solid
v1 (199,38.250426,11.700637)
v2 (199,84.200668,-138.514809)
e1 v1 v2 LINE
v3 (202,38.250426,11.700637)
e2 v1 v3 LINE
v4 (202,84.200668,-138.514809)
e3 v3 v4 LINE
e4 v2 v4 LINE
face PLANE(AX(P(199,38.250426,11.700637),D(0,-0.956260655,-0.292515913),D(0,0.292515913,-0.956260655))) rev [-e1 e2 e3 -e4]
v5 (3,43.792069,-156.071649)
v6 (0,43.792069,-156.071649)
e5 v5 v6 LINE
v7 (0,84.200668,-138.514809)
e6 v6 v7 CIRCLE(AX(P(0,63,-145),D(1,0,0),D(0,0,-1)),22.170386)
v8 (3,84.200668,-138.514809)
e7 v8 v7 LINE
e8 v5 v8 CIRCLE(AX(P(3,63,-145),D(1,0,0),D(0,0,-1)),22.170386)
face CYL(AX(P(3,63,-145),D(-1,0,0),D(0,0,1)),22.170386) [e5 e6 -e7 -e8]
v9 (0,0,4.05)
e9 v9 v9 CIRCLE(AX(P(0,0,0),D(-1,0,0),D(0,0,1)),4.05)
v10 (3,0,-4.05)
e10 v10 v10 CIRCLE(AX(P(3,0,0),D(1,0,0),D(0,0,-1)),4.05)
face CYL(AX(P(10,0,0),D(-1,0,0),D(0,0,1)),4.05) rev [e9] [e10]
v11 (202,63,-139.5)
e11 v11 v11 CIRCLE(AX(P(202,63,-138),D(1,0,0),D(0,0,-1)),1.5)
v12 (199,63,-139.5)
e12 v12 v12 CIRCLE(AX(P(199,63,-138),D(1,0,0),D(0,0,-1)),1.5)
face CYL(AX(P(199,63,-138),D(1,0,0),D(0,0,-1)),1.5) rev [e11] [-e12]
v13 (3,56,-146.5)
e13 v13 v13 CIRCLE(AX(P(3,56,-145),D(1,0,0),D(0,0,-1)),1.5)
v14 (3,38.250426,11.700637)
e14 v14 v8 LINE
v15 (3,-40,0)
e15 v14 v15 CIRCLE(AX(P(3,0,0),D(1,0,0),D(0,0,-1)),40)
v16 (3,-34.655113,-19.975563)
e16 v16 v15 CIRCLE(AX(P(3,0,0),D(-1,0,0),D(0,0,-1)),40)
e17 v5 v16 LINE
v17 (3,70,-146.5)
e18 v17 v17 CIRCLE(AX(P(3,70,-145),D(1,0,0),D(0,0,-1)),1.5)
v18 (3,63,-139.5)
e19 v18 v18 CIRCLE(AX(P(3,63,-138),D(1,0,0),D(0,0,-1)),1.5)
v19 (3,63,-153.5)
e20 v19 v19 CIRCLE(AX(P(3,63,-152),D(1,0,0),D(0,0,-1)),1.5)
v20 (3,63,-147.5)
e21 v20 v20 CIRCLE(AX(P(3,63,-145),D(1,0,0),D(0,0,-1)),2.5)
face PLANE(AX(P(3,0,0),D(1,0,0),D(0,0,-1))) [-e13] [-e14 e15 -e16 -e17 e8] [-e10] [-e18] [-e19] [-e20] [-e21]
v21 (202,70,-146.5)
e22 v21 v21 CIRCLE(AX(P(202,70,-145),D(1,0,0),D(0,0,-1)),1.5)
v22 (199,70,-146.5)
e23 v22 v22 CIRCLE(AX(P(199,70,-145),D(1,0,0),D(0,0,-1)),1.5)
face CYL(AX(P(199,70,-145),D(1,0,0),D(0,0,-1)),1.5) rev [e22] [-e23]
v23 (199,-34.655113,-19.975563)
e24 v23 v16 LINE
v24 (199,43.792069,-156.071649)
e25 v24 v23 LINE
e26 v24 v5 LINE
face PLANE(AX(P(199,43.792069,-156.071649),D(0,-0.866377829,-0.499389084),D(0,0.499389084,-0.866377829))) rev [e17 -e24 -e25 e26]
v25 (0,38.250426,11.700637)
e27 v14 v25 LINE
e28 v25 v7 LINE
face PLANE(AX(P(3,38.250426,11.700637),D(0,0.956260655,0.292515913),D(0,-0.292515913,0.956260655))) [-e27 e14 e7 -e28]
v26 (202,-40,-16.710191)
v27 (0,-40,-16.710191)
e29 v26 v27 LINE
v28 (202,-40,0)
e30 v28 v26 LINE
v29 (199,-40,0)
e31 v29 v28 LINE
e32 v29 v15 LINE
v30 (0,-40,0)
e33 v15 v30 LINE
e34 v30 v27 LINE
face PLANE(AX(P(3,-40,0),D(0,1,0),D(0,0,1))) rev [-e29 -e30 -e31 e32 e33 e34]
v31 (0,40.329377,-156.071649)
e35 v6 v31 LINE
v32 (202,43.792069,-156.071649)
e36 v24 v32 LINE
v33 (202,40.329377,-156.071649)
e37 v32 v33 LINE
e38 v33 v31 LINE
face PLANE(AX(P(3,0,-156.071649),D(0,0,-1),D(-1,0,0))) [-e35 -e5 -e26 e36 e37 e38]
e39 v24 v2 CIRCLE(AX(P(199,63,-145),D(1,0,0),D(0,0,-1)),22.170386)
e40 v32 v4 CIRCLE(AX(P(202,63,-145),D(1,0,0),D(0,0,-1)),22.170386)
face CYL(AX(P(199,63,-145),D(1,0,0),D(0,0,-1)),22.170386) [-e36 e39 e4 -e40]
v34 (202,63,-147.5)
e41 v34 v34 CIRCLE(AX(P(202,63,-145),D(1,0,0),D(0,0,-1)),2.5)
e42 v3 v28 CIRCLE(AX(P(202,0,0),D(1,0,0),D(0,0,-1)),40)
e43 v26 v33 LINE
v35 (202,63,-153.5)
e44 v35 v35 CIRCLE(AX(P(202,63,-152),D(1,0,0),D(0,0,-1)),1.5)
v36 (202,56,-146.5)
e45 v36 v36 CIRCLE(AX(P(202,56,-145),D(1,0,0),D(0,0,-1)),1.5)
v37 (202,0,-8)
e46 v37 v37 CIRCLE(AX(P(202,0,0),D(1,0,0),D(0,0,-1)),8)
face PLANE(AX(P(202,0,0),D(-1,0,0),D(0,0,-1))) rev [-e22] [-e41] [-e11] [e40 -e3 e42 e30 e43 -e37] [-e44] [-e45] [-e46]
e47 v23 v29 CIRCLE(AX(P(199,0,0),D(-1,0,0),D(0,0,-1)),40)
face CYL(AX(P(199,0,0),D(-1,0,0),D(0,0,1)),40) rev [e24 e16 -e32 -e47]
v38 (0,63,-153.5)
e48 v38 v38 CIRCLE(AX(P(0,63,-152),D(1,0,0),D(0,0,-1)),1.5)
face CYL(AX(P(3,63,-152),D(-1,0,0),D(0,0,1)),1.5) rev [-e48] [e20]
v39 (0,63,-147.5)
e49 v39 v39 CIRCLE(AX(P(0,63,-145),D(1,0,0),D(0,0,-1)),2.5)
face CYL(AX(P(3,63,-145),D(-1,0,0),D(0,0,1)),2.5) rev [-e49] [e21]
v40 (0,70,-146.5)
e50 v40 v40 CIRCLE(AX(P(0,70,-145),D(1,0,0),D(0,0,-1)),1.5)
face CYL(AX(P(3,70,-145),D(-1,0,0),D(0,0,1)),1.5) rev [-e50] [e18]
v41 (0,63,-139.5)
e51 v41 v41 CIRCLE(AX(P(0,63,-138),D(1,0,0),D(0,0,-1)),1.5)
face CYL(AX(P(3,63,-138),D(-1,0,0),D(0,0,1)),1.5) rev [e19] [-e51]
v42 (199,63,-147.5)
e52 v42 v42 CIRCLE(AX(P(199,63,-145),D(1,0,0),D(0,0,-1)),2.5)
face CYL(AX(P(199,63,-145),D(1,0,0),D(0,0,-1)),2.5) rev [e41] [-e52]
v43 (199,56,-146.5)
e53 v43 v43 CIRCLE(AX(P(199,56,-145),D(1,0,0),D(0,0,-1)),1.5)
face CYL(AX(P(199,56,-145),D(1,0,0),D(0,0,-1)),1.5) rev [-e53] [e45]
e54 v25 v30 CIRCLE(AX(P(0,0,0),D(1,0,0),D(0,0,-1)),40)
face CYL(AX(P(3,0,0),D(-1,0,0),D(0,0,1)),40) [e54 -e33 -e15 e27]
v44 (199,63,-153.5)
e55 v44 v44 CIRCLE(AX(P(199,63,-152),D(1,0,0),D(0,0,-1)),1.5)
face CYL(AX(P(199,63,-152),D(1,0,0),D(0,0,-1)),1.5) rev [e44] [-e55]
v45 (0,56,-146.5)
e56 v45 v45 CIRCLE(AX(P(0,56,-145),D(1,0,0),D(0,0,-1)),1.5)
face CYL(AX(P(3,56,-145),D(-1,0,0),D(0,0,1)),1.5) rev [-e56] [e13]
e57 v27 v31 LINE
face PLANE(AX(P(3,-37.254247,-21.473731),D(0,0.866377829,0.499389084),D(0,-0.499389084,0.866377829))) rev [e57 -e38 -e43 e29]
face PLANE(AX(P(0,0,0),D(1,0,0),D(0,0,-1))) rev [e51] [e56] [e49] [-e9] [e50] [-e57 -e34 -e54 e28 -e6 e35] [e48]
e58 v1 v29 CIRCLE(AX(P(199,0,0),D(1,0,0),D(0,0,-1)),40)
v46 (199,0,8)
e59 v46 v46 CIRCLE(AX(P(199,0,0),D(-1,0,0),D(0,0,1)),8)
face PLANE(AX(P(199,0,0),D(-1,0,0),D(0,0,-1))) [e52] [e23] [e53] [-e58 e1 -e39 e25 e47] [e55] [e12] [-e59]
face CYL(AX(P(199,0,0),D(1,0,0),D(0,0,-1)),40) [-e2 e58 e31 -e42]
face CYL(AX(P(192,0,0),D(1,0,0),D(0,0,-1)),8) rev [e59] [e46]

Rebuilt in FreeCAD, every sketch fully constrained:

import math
import FreeCAD as App
import Part
import Sketcher
from FreeCAD import Vector

doc = App.newDocument("Part")
body = doc.addObject("PartDesign::Body", "Body")

sketch1 = doc.addObject("Sketcher::SketchObject", "Sketch")
body.addObject(sketch1)
sketch1.AttachmentSupport = (doc.YZ_Plane, [""])
sketch1.MapMode = "FlatFace"
sketch1.addGeometry([
    Part.LineSegment(Vector(84.2, -138.5, 0), Vector(38.3, 11.7, 0)),
    Part.ArcOfCircle(Part.Circle(Vector(0, 0, 0), Vector(0, 0, 1), 40), math.radians(17), math.radians(180)),
    Part.LineSegment(Vector(-40, 0, 0), Vector(-40, -16.7, 0)),
    Part.LineSegment(Vector(-40, -16.7, 0), Vector(40.3, -156.1, 0)),
    Part.LineSegment(Vector(40.3, -156.1, 0), Vector(43.8, -156.1, 0)),
    Part.ArcOfCircle(Part.Circle(Vector(63, -145, 0), Vector(0, 0, 1), 22.2), math.radians(-150), math.radians(17)),
    Part.Circle(Vector(0, 0, 0), Vector(0, 0, 1), 3),
    Part.Circle(Vector(56, -145, 0), Vector(0, 0, 1), 1.5),
    Part.Circle(Vector(63, -138, 0), Vector(0, 0, 1), 1.5),
    Part.Circle(Vector(63, -145, 0), Vector(0, 0, 1), 2.5),
    Part.Circle(Vector(63, -152, 0), Vector(0, 0, 1), 1.5),
    Part.Circle(Vector(70, -145, 0), Vector(0, 0, 1), 1.5),
], False)
sketch1.addConstraint([
    Sketcher.Constraint("Tangent", 0, 2, 1, 1),
    Sketcher.Constraint("Tangent", 1, 2, 2, 1),
    Sketcher.Constraint("Coincident", 2, 2, 3, 1),
    Sketcher.Constraint("Coincident", 3, 2, 4, 1),
    Sketcher.Constraint("Coincident", 4, 2, 5, 1),
    Sketcher.Constraint("Tangent", 5, 2, 0, 1),
    Sketcher.Constraint("Vertical", 2),
    Sketcher.Constraint("Horizontal", 4),
    Sketcher.Constraint("Coincident", 1, 3, -1, 1),
    Sketcher.Constraint("Coincident", 6, 3, -1, 1),
    Sketcher.Constraint("Coincident", 9, 3, 5, 3),
    Sketcher.Constraint("Equal", 7, 8),
    Sketcher.Constraint("Equal", 8, 10),
    Sketcher.Constraint("Equal", 10, 11),
    Sketcher.Constraint("Horizontal", 5, 3, 7, 3),
    Sketcher.Constraint("Horizontal", 9, 3, 11, 3),
    Sketcher.Constraint("Vertical", 5, 3, 8, 3),
    Sketcher.Constraint("Vertical", 9, 3, 10, 3),
    Sketcher.Constraint("Diameter", 6, 6.0),
    Sketcher.Constraint("Diameter", 7, 3.0),
    Sketcher.Constraint("Diameter", 9, 5.0),
    Sketcher.Constraint("Radius", 1, 40.0),
    Sketcher.Constraint("DistanceX", -1, 1, 5, 3, 63.0),
    Sketcher.Constraint("DistanceY", 5, 3, -1, 1, 145.0),
    Sketcher.Constraint("DistanceX", -1, 1, 7, 3, 56.0),
    Sketcher.Constraint("DistanceY", 8, 3, -1, 1, 138.0),
    Sketcher.Constraint("DistanceY", 10, 3, -1, 1, 152.0),
    Sketcher.Constraint("DistanceX", -1, 1, 11, 3, 70.0),
    Sketcher.Constraint("Radius", 5, 22.170386),
    Sketcher.Constraint("DistanceY", 2, 2, 2, 1, 16.710191),
    Sketcher.Constraint("Distance", 3, 160.855291),
    Sketcher.Constraint("DistanceX", 4, 1, 4, 2, 3.462692),
])
pad1 = doc.addObject("PartDesign::Pad", "Pad")
body.addObject(pad1)
pad1.Profile = sketch1
pad1.Length = 3

sketch2 = doc.addObject("Sketcher::SketchObject", "Sketch001")
body.addObject(sketch2)
sketch2.AttachmentSupport = (doc.YZ_Plane, [""])
sketch2.MapMode = "FlatFace"
sketch2.AttachmentOffset = App.Placement(Vector(0, 0, 3), App.Rotation())
sketch2.addGeometry([
    Part.LineSegment(Vector(-40, 0, 0), Vector(-40, -16.710191, 0)),
    Part.LineSegment(Vector(-40, -16.710191, 0), Vector(40.329377, -156.071649, 0)),
    Part.LineSegment(Vector(40.329377, -156.071649, 0), Vector(43.792069, -156.071649, 0)),
    Part.LineSegment(Vector(43.792069, -156.071649, 0), Vector(-34.655113, -19.975563, 0)),
    Part.ArcOfCircle(Part.Circle(Vector(0, 0, 0), Vector(0, 0, 1), 40), math.radians(-180), math.radians(-150.04041)),
], False)
sketch2.addConstraint([
    Sketcher.Constraint("Coincident", 0, 2, 1, 1),
    Sketcher.Constraint("Coincident", 1, 2, 2, 1),
    Sketcher.Constraint("Coincident", 2, 2, 3, 1),
    Sketcher.Constraint("Coincident", 3, 2, 4, 2),
    Sketcher.Constraint("Coincident", 4, 1, 0, 1),
    Sketcher.Constraint("Vertical", 0),
    Sketcher.Constraint("Horizontal", 2),
    Sketcher.Constraint("Coincident", 4, 3, -1, 1),
    Sketcher.Constraint("PointOnObject", 4, 1, -1),
    Sketcher.Constraint("Radius", 4, 40.0),
    Sketcher.Constraint("DistanceY", 0, 2, 0, 1, 16.710191),
    Sketcher.Constraint("Distance", 1, 160.855291),
    Sketcher.Constraint("DistanceX", 2, 1, 2, 2, 3.462692),
    Sketcher.Constraint("DistanceY", 1, 2, -1, 1, 156.071649),
    Sketcher.Constraint("DistanceX", 3, 2, 1, 2, 74.98449),
])
pad2 = doc.addObject("PartDesign::Pad", "Pad001")
body.addObject(pad2)
pad2.Profile = sketch2
pad2.Length = 196
doc.recompute()

datumplane = doc.addObject("PartDesign::Plane", "DatumPlane")
body.addObject(datumplane)
datumplane.AttachmentSupport = (doc.YZ_Plane, [""])
datumplane.MapMode = "FlatFace"
datumplane.AttachmentOffset = App.Placement(Vector(0, 0, 101), App.Rotation())
mirrored = doc.addObject("PartDesign::Mirrored", "Mirrored")
body.addObject(mirrored)
mirrored.Originals = [pad1]
mirrored.MirrorPlane = (datumplane, [""])
body.Tip = mirrored

sketch3 = doc.addObject("Sketcher::SketchObject", "Sketch002")
body.addObject(sketch3)
sketch3.AttachmentSupport = (doc.YZ_Plane, [""])
sketch3.MapMode = "FlatFace"
sketch3.AttachmentOffset = App.Placement(Vector(0, 0, 202), App.Rotation())
sketch3.addGeometry(Part.Circle(Vector(0, 0, 0), Vector(0, 0, 1), 8), False)
sketch3.addConstraint([
    Sketcher.Constraint("Coincident", 0, 3, -1, 1),
    Sketcher.Constraint("Diameter", 0, 16.0),
])
pocket1 = doc.addObject("PartDesign::Pocket", "Pocket")
body.addObject(pocket1)
pocket1.Profile = sketch3
pocket1.Length = 10

sketch4 = doc.addObject("Sketcher::SketchObject", "Sketch003")
body.addObject(sketch4)
sketch4.AttachmentSupport = (doc.YZ_Plane, [""])
sketch4.MapMode = "FlatFace"
sketch4.addGeometry(Part.Circle(Vector(0, 0, 0), Vector(0, 0, 1), 4), False)
sketch4.addConstraint([
    Sketcher.Constraint("Coincident", 0, 3, -1, 1),
    Sketcher.Constraint("Diameter", 0, 8.1),
])
pocket2 = doc.addObject("PartDesign::Pocket", "Pocket001")
body.addObject(pocket2)
pocket2.Profile = sketch4
pocket2.Length = 10
pocket2.Reversed = True

doc.recompute()
